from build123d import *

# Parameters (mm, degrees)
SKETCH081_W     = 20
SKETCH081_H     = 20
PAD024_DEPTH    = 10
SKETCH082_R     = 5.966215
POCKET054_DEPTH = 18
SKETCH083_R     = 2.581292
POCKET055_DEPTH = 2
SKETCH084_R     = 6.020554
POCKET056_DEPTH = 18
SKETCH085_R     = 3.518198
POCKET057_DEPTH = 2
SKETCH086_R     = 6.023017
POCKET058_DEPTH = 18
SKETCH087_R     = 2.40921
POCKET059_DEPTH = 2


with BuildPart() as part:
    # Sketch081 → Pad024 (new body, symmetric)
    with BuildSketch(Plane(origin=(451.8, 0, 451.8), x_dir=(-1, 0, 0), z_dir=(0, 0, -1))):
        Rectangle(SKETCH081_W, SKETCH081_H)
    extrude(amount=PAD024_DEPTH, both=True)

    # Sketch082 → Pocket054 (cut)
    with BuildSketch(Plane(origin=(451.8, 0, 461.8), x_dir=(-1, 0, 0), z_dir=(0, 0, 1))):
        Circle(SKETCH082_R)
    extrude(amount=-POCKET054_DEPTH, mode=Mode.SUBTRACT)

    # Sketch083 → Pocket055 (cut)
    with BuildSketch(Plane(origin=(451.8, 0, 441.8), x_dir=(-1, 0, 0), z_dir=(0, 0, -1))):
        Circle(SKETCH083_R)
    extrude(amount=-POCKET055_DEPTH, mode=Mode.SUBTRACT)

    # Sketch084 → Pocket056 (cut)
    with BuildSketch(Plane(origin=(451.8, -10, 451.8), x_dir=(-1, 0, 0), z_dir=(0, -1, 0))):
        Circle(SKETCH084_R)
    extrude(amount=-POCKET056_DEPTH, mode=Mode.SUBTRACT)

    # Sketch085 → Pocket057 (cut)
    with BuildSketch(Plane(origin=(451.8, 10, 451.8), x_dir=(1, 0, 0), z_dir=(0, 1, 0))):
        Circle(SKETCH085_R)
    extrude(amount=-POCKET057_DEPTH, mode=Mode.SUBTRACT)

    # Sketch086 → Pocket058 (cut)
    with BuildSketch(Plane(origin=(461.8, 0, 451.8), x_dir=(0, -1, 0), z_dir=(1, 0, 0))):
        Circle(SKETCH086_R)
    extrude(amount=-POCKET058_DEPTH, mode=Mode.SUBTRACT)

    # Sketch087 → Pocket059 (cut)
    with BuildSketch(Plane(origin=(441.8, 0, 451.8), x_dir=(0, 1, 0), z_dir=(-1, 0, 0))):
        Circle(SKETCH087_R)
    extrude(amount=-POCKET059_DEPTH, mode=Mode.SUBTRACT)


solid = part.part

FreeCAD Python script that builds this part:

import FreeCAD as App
import Part
import Sketcher
Q = App.Units.Quantity

doc = App.newDocument("Part")
body = doc.addObject("PartDesign::Body", "Body")

sketch1 = body.newObject("Sketcher::SketchObject", "Sketch")
sketch1.AttachmentSupport = (doc.getObject("XY_Plane"), [""])
sketch1.MapMode = "FlatFace"
sketch1.AttachmentOffset = App.Placement(App.Vector(0, 0, 451.8), App.Rotation())
sketch1.addGeometry([
    Part.LineSegment(App.Vector(462, 10, 0), App.Vector(462, -10, 0)),
    Part.LineSegment(App.Vector(462, -10, 0), App.Vector(442, -10, 0)),
    Part.LineSegment(App.Vector(442, -10, 0), App.Vector(442, 10, 0)),
    Part.LineSegment(App.Vector(442, 10, 0), App.Vector(462, 10, 0)),
], False)
sketch1.addConstraint([
    Sketcher.Constraint("Coincident", 0, 2, 1, 1),
    Sketcher.Constraint("Coincident", 1, 2, 2, 1),
    Sketcher.Constraint("Coincident", 2, 2, 3, 1),
    Sketcher.Constraint("Coincident", 3, 2, 0, 1),
    Sketcher.Constraint("Vertical", 0),
    Sketcher.Constraint("Horizontal", 1),
    Sketcher.Constraint("Vertical", 2),
    Sketcher.Constraint("Horizontal", 3),
    Sketcher.Constraint("Equal", 3, 0),
    Sketcher.Constraint("DistanceX", 1, 2, 1, 1, Q("20 mm")),
    Sketcher.Constraint("DistanceY", 0, 2, -1, 1, Q("10 mm")),
    Sketcher.Constraint("DistanceX", -1, 1, 0, 2, Q("461.8 mm")),
])
pad1 = body.newObject("PartDesign::Pad", "Pad")
pad1.Profile = sketch1
pad1.Length = 20
pad1.Midplane = True

sketch2 = body.newObject("Sketcher::SketchObject", "Sketch001")
sketch2.AttachmentSupport = (doc.getObject("XY_Plane"), [""])
sketch2.MapMode = "FlatFace"
sketch2.AttachmentOffset = App.Placement(App.Vector(0, 0, 461.8), App.Rotation())
sketch2.addGeometry(Part.Circle(App.Vector(452, 0, 0), App.Vector(0, 0, 1), 6), False)
sketch2.addConstraint([
    Sketcher.Constraint("PointOnObject", 0, 3, -1),
    Sketcher.Constraint("DistanceX", -1, 1, 0, 3, Q("451.8 mm")),
    Sketcher.Constraint("Diameter", 0, Q("11.93243 mm")),
])
pocket1 = body.newObject("PartDesign::Pocket", "Pocket")
pocket1.Profile = sketch2
pocket1.Length = 18

sketch3 = body.newObject("Sketcher::SketchObject", "Sketch002")
sketch3.AttachmentSupport = (doc.getObject("XY_Plane"), [""])
sketch3.MapMode = "FlatFace"
sketch3.AttachmentOffset = App.Placement(App.Vector(0, 0, 441.8), App.Rotation())
sketch3.addGeometry(Part.Circle(App.Vector(451.8, 0, 0), App.Vector(0, 0, 1), 2.6), False)
sketch3.addConstraint([
    Sketcher.Constraint("PointOnObject", 0, 3, -1),
    Sketcher.Constraint("DistanceX", -1, 1, 0, 3, Q("451.8 mm")),
    Sketcher.Constraint("Diameter", 0, Q("5.162584 mm")),
])
pocket2 = body.newObject("PartDesign::Pocket", "Pocket001")
pocket2.Profile = sketch3
pocket2.Length = 2
pocket2.Reversed = True

sketch4 = body.newObject("Sketcher::SketchObject", "Sketch003")
sketch4.AttachmentSupport = (doc.getObject("XZ_Plane"), [""])
sketch4.MapMode = "FlatFace"
sketch4.AttachmentOffset = App.Placement(App.Vector(0, 0, 10), App.Rotation())
sketch4.addGeometry(Part.Circle(App.Vector(452, 452, 0), App.Vector(0, 0, 1), 6), False)
sketch4.addConstraint([
    Sketcher.Constraint("DistanceX", -1, 1, 0, 3, Q("451.8 mm")),
    Sketcher.Constraint("DistanceY", -1, 1, 0, 3, Q("451.8 mm")),
    Sketcher.Constraint("Diameter", 0, Q("12.041108 mm")),
])
pocket3 = body.newObject("PartDesign::Pocket", "Pocket002")
pocket3.Profile = sketch4
pocket3.Length = 18

sketch5 = body.newObject("Sketcher::SketchObject", "Sketch004")
sketch5.AttachmentSupport = (doc.getObject("XZ_Plane"), [""])
sketch5.MapMode = "FlatFace"
sketch5.AttachmentOffset = App.Placement(App.Vector(0, 0, -10), App.Rotation())
sketch5.addGeometry(Part.Circle(App.Vector(451.8, 451.8, 0), App.Vector(0, 0, 1), 3.5), False)
sketch5.addConstraint([
    Sketcher.Constraint("DistanceX", -1, 1, 0, 3, Q("451.8 mm")),
    Sketcher.Constraint("DistanceY", -1, 1, 0, 3, Q("451.8 mm")),
    Sketcher.Constraint("Diameter", 0, Q("7.036396 mm")),
])
pocket4 = body.newObject("PartDesign::Pocket", "Pocket003")
pocket4.Profile = sketch5
pocket4.Length = 2
pocket4.Reversed = True

sketch6 = body.newObject("Sketcher::SketchObject", "Sketch005")
sketch6.AttachmentSupport = (doc.getObject("YZ_Plane"), [""])
sketch6.MapMode = "FlatFace"
sketch6.AttachmentOffset = App.Placement(App.Vector(0, 0, 461.8), App.Rotation())
sketch6.addGeometry(Part.Circle(App.Vector(0, 452, 0), App.Vector(0, 0, 1), 6), False)
sketch6.addConstraint([
    Sketcher.Constraint("PointOnObject", 0, 3, -2),
    Sketcher.Constraint("DistanceY", -1, 1, 0, 3, Q("451.8 mm")),
    Sketcher.Constraint("Diameter", 0, Q("12.046034 mm")),
])
pocket5 = body.newObject("PartDesign::Pocket", "Pocket004")
pocket5.Profile = sketch6
pocket5.Length = 18

sketch7 = body.newObject("Sketcher::SketchObject", "Sketch006")
sketch7.AttachmentSupport = (doc.getObject("YZ_Plane"), [""])
sketch7.MapMode = "FlatFace"
sketch7.AttachmentOffset = App.Placement(App.Vector(0, 0, 441.8), App.Rotation())
sketch7.addGeometry(Part.Circle(App.Vector(0, 451.8, 0), App.Vector(0, 0, 1), 2.4), False)
sketch7.addConstraint([
    Sketcher.Constraint("PointOnObject", 0, 3, -2),
    Sketcher.Constraint("DistanceY", -1, 1, 0, 3, Q("451.8 mm")),
    Sketcher.Constraint("Diameter", 0, Q("4.81842 mm")),
])
pocket6 = body.newObject("PartDesign::Pocket", "Pocket005")
pocket6.Profile = sketch7
pocket6.Length = 2
pocket6.Reversed = True

doc.recompute()
